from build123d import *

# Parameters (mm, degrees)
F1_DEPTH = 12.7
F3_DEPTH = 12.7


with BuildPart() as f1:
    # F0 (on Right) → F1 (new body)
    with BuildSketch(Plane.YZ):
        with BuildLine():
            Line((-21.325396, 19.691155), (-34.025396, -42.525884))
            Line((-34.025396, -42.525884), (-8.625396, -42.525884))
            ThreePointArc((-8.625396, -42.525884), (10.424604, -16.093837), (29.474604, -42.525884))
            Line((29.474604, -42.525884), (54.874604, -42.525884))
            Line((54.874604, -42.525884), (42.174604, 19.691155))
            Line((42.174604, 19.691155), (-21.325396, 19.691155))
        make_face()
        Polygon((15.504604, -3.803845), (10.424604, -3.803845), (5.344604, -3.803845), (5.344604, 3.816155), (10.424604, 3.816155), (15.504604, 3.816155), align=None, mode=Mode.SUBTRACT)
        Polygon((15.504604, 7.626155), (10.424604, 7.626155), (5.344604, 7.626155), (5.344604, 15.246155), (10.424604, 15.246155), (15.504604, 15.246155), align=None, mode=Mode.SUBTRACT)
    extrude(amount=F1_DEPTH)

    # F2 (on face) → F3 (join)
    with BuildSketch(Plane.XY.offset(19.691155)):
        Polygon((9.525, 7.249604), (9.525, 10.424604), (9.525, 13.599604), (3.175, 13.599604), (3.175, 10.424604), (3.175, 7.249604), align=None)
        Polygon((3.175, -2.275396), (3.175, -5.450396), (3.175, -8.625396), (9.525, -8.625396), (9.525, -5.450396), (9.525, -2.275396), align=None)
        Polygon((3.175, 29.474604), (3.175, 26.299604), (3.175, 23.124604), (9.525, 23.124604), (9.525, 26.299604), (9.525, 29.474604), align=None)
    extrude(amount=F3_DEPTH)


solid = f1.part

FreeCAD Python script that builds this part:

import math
import FreeCAD as App
import Part
import Sketcher

V = App.Vector
Q = App.Units.Quantity


def add_polygon(sketch, points):
    """Adds a closed chain of lines whose ends are joined by coincident constraints."""
    first, n = sketch.GeometryCount, len(points)
    for a, b in zip(points, points[1:] + points[:1]):
        sketch.addGeometry(Part.LineSegment(App.Vector(*a, 0), App.Vector(*b, 0)), False)
    for i in range(n):
        sketch.addConstraint(Sketcher.Constraint("Coincident", first + i, 2, first + (i + 1) % n, 1))

doc = App.newDocument("Part")
body = doc.addObject("PartDesign::Body", "Body")

# Sketch on YZ plane
sketch1 = doc.addObject("Sketcher::SketchObject", "Sketch")
body.addObject(sketch1)
sketch1.AttachmentSupport = (doc.YZ_Plane, [""])
sketch1.MapMode = "FlatFace"
sketch1.addGeometry(Part.LineSegment(V(-21.325396, 19.691155, 0), V(-34.025396, -42.525884, 0)), False)  # 0
sketch1.addGeometry(Part.LineSegment(V(-34.025396, -42.525884, 0), V(-8.625396, -42.525884, 0)), False)  # 1
sketch1.addGeometry(Part.ArcOfCircle(Part.Circle(V(10.424604, -36.174681, 0), V(0, 0, 1), 20.080844), math.radians(-18.438206), math.radians(198.438206)), False)  # 2
sketch1.addGeometry(Part.LineSegment(V(29.474604, -42.525884, 0), V(54.874604, -42.525884, 0)), False)  # 3
sketch1.addGeometry(Part.LineSegment(V(54.874604, -42.525884, 0), V(42.174604, 19.691155, 0)), False)  # 4
sketch1.addGeometry(Part.LineSegment(V(42.174604, 19.691155, 0), V(-21.325396, 19.691155, 0)), False)  # 5
add_polygon(sketch1, [(15.504604, 3.816155), (15.504604, -3.803845), (5.344604, -3.803845), (5.344604, 3.816155)])  # lines 6-9
add_polygon(sketch1, [(15.504604, 15.246155), (15.504604, 7.626155), (5.344604, 7.626155), (5.344604, 15.246155)])  # lines 10-13
sketch1.addConstraint(Sketcher.Constraint("Coincident", 0, 2, 1, 1))
sketch1.addConstraint(Sketcher.Constraint("Coincident", 1, 2, 2, 2))
sketch1.addConstraint(Sketcher.Constraint("Coincident", 2, 1, 3, 1))
sketch1.addConstraint(Sketcher.Constraint("Coincident", 3, 2, 4, 1))
sketch1.addConstraint(Sketcher.Constraint("Coincident", 4, 2, 5, 1))
sketch1.addConstraint(Sketcher.Constraint("Coincident", 5, 2, 0, 1))
sketch1.addConstraint(Sketcher.Constraint("Horizontal", 1))
sketch1.addConstraint(Sketcher.Constraint("Horizontal", 3))
sketch1.addConstraint(Sketcher.Constraint("Horizontal", 5))
sketch1.addConstraint(Sketcher.Constraint("Vertical", 6))
sketch1.addConstraint(Sketcher.Constraint("Horizontal", 7))
sketch1.addConstraint(Sketcher.Constraint("Vertical", 8))
sketch1.addConstraint(Sketcher.Constraint("Horizontal", 9))
sketch1.addConstraint(Sketcher.Constraint("Vertical", 10))
sketch1.addConstraint(Sketcher.Constraint("Horizontal", 11))
sketch1.addConstraint(Sketcher.Constraint("Vertical", 12))
sketch1.addConstraint(Sketcher.Constraint("Horizontal", 13))
sketch1.addConstraint(Sketcher.Constraint("Horizontal", 1, 2, 2, 1))
sketch1.addConstraint(Sketcher.Constraint("Vertical", 9, 2, 10, 2))
sketch1.addConstraint(Sketcher.Constraint("Vertical", 8, 2, 11, 2))
sketch1.addConstraint(Sketcher.Constraint("Equal", 1, 3))
sketch1.addConstraint(Sketcher.Constraint("Equal", 8, 10))
sketch1.addConstraint(Sketcher.Constraint("Equal", 0, 4))
sketch1.addConstraint(Sketcher.Constraint("DistanceX", 1, 1, 1, 2, Q("1 in")))
sketch1.addConstraint(Sketcher.Constraint("DistanceX", 5, 2, 5, 1, Q("2.5 in")))
sketch1.addConstraint(Sketcher.Constraint("DistanceX", 7, 2, 7, 1, Q("0.4 in")))
sketch1.addConstraint(Sketcher.Constraint("DistanceY", 6, 2, 6, 1, Q("0.3 in")))
sketch1.addConstraint(Sketcher.Constraint("DistanceX", 1, 2, 4, 2, Q("2 in")))
sketch1.addConstraint(Sketcher.Constraint("Distance", 0, Q("2.5 in")))
sketch1.addConstraint(Sketcher.Constraint("DistanceX", 2, 3, 6, 2, Q("0.2 in")))
sketch1.addConstraint(Sketcher.Constraint("DistanceY", 9, 2, 10, 2, Q("0.15 in")))
sketch1.addConstraint(Sketcher.Constraint("DistanceY", 6, 2, 4, 2, Q("0.925 in")))
sketch1.addConstraint(Sketcher.Constraint("DistanceY", 2, 3, -1, 1, Q("1.4242 in")))
sketch1.addConstraint(Sketcher.Constraint("Radius", 2, 20.080844))
sketch1.addConstraint(Sketcher.Constraint("DistanceX", -1, 1, 2, 3, 10.424604))
pad1 = doc.addObject("PartDesign::Pad", "Pad")
body.addObject(pad1)
pad1.Profile = sketch1
pad1.Length = Q("0.5 in")

# Sketch on XY plane
sketch2 = doc.addObject("Sketcher::SketchObject", "Sketch001")
body.addObject(sketch2)
sketch2.AttachmentSupport = (doc.XY_Plane, [""])
sketch2.MapMode = "FlatFace"
sketch2.AttachmentOffset = App.Placement(V(0, 0, 19.691155), App.Rotation())
add_polygon(sketch2, [(9.525, 7.249604), (9.525, 13.599604), (3.175, 13.599604), (3.175, 7.249604)])  # lines 0-3
add_polygon(sketch2, [(3.175, -2.275396), (3.175, -8.625396), (9.525, -8.625396), (9.525, -2.275396)])  # lines 4-7
add_polygon(sketch2, [(3.175, 29.474604), (3.175, 23.124604), (9.525, 23.124604), (9.525, 29.474604)])  # lines 8-11
sketch2.addConstraint(Sketcher.Constraint("Vertical", 0))
sketch2.addConstraint(Sketcher.Constraint("Horizontal", 1))
sketch2.addConstraint(Sketcher.Constraint("Vertical", 2))
sketch2.addConstraint(Sketcher.Constraint("Horizontal", 3))
sketch2.addConstraint(Sketcher.Constraint("Vertical", 4))
sketch2.addConstraint(Sketcher.Constraint("Horizontal", 5))
sketch2.addConstraint(Sketcher.Constraint("Vertical", 6))
sketch2.addConstraint(Sketcher.Constraint("Horizontal", 7))
sketch2.addConstraint(Sketcher.Constraint("Vertical", 8))
sketch2.addConstraint(Sketcher.Constraint("Horizontal", 9))
sketch2.addConstraint(Sketcher.Constraint("Vertical", 10))
sketch2.addConstraint(Sketcher.Constraint("Horizontal", 11))
sketch2.addConstraint(Sketcher.Constraint("Vertical", 2, 2, 4, 2))
sketch2.addConstraint(Sketcher.Constraint("Vertical", 3, 2, 5, 2))
sketch2.addConstraint(Sketcher.Constraint("Vertical", 7, 2, 8, 2))
sketch2.addConstraint(Sketcher.Constraint("Vertical", 6, 2, 9, 2))
sketch2.addConstraint(Sketcher.Constraint("Equal", 11, 0))
sketch2.addConstraint(Sketcher.Constraint("Equal", 2, 4))
sketch2.addConstraint(Sketcher.Constraint("Equal", 6, 8))
sketch2.addConstraint(Sketcher.Constraint("DistanceY", 7, 2, 8, 2, Q("1 in")))
sketch2.addConstraint(Sketcher.Constraint("DistanceX", 1, 2, 1, 1, Q("0.25 in")))
sketch2.addConstraint(Sketcher.Constraint("DistanceX", -1, 1, 0, 2, Q("0.375 in")))
sketch2.addConstraint(Sketcher.Constraint("DistanceY", 4, 2, 2, 2, Q("0.625 in")))
sketch2.addConstraint(Sketcher.Constraint("DistanceY", -1, 1, 0, 2, 13.599604))
pad2 = doc.addObject("PartDesign::Pad", "Pad001")
body.addObject(pad2)
pad2.Profile = sketch2
pad2.Length = Q("0.5 in")

doc.recompute()
